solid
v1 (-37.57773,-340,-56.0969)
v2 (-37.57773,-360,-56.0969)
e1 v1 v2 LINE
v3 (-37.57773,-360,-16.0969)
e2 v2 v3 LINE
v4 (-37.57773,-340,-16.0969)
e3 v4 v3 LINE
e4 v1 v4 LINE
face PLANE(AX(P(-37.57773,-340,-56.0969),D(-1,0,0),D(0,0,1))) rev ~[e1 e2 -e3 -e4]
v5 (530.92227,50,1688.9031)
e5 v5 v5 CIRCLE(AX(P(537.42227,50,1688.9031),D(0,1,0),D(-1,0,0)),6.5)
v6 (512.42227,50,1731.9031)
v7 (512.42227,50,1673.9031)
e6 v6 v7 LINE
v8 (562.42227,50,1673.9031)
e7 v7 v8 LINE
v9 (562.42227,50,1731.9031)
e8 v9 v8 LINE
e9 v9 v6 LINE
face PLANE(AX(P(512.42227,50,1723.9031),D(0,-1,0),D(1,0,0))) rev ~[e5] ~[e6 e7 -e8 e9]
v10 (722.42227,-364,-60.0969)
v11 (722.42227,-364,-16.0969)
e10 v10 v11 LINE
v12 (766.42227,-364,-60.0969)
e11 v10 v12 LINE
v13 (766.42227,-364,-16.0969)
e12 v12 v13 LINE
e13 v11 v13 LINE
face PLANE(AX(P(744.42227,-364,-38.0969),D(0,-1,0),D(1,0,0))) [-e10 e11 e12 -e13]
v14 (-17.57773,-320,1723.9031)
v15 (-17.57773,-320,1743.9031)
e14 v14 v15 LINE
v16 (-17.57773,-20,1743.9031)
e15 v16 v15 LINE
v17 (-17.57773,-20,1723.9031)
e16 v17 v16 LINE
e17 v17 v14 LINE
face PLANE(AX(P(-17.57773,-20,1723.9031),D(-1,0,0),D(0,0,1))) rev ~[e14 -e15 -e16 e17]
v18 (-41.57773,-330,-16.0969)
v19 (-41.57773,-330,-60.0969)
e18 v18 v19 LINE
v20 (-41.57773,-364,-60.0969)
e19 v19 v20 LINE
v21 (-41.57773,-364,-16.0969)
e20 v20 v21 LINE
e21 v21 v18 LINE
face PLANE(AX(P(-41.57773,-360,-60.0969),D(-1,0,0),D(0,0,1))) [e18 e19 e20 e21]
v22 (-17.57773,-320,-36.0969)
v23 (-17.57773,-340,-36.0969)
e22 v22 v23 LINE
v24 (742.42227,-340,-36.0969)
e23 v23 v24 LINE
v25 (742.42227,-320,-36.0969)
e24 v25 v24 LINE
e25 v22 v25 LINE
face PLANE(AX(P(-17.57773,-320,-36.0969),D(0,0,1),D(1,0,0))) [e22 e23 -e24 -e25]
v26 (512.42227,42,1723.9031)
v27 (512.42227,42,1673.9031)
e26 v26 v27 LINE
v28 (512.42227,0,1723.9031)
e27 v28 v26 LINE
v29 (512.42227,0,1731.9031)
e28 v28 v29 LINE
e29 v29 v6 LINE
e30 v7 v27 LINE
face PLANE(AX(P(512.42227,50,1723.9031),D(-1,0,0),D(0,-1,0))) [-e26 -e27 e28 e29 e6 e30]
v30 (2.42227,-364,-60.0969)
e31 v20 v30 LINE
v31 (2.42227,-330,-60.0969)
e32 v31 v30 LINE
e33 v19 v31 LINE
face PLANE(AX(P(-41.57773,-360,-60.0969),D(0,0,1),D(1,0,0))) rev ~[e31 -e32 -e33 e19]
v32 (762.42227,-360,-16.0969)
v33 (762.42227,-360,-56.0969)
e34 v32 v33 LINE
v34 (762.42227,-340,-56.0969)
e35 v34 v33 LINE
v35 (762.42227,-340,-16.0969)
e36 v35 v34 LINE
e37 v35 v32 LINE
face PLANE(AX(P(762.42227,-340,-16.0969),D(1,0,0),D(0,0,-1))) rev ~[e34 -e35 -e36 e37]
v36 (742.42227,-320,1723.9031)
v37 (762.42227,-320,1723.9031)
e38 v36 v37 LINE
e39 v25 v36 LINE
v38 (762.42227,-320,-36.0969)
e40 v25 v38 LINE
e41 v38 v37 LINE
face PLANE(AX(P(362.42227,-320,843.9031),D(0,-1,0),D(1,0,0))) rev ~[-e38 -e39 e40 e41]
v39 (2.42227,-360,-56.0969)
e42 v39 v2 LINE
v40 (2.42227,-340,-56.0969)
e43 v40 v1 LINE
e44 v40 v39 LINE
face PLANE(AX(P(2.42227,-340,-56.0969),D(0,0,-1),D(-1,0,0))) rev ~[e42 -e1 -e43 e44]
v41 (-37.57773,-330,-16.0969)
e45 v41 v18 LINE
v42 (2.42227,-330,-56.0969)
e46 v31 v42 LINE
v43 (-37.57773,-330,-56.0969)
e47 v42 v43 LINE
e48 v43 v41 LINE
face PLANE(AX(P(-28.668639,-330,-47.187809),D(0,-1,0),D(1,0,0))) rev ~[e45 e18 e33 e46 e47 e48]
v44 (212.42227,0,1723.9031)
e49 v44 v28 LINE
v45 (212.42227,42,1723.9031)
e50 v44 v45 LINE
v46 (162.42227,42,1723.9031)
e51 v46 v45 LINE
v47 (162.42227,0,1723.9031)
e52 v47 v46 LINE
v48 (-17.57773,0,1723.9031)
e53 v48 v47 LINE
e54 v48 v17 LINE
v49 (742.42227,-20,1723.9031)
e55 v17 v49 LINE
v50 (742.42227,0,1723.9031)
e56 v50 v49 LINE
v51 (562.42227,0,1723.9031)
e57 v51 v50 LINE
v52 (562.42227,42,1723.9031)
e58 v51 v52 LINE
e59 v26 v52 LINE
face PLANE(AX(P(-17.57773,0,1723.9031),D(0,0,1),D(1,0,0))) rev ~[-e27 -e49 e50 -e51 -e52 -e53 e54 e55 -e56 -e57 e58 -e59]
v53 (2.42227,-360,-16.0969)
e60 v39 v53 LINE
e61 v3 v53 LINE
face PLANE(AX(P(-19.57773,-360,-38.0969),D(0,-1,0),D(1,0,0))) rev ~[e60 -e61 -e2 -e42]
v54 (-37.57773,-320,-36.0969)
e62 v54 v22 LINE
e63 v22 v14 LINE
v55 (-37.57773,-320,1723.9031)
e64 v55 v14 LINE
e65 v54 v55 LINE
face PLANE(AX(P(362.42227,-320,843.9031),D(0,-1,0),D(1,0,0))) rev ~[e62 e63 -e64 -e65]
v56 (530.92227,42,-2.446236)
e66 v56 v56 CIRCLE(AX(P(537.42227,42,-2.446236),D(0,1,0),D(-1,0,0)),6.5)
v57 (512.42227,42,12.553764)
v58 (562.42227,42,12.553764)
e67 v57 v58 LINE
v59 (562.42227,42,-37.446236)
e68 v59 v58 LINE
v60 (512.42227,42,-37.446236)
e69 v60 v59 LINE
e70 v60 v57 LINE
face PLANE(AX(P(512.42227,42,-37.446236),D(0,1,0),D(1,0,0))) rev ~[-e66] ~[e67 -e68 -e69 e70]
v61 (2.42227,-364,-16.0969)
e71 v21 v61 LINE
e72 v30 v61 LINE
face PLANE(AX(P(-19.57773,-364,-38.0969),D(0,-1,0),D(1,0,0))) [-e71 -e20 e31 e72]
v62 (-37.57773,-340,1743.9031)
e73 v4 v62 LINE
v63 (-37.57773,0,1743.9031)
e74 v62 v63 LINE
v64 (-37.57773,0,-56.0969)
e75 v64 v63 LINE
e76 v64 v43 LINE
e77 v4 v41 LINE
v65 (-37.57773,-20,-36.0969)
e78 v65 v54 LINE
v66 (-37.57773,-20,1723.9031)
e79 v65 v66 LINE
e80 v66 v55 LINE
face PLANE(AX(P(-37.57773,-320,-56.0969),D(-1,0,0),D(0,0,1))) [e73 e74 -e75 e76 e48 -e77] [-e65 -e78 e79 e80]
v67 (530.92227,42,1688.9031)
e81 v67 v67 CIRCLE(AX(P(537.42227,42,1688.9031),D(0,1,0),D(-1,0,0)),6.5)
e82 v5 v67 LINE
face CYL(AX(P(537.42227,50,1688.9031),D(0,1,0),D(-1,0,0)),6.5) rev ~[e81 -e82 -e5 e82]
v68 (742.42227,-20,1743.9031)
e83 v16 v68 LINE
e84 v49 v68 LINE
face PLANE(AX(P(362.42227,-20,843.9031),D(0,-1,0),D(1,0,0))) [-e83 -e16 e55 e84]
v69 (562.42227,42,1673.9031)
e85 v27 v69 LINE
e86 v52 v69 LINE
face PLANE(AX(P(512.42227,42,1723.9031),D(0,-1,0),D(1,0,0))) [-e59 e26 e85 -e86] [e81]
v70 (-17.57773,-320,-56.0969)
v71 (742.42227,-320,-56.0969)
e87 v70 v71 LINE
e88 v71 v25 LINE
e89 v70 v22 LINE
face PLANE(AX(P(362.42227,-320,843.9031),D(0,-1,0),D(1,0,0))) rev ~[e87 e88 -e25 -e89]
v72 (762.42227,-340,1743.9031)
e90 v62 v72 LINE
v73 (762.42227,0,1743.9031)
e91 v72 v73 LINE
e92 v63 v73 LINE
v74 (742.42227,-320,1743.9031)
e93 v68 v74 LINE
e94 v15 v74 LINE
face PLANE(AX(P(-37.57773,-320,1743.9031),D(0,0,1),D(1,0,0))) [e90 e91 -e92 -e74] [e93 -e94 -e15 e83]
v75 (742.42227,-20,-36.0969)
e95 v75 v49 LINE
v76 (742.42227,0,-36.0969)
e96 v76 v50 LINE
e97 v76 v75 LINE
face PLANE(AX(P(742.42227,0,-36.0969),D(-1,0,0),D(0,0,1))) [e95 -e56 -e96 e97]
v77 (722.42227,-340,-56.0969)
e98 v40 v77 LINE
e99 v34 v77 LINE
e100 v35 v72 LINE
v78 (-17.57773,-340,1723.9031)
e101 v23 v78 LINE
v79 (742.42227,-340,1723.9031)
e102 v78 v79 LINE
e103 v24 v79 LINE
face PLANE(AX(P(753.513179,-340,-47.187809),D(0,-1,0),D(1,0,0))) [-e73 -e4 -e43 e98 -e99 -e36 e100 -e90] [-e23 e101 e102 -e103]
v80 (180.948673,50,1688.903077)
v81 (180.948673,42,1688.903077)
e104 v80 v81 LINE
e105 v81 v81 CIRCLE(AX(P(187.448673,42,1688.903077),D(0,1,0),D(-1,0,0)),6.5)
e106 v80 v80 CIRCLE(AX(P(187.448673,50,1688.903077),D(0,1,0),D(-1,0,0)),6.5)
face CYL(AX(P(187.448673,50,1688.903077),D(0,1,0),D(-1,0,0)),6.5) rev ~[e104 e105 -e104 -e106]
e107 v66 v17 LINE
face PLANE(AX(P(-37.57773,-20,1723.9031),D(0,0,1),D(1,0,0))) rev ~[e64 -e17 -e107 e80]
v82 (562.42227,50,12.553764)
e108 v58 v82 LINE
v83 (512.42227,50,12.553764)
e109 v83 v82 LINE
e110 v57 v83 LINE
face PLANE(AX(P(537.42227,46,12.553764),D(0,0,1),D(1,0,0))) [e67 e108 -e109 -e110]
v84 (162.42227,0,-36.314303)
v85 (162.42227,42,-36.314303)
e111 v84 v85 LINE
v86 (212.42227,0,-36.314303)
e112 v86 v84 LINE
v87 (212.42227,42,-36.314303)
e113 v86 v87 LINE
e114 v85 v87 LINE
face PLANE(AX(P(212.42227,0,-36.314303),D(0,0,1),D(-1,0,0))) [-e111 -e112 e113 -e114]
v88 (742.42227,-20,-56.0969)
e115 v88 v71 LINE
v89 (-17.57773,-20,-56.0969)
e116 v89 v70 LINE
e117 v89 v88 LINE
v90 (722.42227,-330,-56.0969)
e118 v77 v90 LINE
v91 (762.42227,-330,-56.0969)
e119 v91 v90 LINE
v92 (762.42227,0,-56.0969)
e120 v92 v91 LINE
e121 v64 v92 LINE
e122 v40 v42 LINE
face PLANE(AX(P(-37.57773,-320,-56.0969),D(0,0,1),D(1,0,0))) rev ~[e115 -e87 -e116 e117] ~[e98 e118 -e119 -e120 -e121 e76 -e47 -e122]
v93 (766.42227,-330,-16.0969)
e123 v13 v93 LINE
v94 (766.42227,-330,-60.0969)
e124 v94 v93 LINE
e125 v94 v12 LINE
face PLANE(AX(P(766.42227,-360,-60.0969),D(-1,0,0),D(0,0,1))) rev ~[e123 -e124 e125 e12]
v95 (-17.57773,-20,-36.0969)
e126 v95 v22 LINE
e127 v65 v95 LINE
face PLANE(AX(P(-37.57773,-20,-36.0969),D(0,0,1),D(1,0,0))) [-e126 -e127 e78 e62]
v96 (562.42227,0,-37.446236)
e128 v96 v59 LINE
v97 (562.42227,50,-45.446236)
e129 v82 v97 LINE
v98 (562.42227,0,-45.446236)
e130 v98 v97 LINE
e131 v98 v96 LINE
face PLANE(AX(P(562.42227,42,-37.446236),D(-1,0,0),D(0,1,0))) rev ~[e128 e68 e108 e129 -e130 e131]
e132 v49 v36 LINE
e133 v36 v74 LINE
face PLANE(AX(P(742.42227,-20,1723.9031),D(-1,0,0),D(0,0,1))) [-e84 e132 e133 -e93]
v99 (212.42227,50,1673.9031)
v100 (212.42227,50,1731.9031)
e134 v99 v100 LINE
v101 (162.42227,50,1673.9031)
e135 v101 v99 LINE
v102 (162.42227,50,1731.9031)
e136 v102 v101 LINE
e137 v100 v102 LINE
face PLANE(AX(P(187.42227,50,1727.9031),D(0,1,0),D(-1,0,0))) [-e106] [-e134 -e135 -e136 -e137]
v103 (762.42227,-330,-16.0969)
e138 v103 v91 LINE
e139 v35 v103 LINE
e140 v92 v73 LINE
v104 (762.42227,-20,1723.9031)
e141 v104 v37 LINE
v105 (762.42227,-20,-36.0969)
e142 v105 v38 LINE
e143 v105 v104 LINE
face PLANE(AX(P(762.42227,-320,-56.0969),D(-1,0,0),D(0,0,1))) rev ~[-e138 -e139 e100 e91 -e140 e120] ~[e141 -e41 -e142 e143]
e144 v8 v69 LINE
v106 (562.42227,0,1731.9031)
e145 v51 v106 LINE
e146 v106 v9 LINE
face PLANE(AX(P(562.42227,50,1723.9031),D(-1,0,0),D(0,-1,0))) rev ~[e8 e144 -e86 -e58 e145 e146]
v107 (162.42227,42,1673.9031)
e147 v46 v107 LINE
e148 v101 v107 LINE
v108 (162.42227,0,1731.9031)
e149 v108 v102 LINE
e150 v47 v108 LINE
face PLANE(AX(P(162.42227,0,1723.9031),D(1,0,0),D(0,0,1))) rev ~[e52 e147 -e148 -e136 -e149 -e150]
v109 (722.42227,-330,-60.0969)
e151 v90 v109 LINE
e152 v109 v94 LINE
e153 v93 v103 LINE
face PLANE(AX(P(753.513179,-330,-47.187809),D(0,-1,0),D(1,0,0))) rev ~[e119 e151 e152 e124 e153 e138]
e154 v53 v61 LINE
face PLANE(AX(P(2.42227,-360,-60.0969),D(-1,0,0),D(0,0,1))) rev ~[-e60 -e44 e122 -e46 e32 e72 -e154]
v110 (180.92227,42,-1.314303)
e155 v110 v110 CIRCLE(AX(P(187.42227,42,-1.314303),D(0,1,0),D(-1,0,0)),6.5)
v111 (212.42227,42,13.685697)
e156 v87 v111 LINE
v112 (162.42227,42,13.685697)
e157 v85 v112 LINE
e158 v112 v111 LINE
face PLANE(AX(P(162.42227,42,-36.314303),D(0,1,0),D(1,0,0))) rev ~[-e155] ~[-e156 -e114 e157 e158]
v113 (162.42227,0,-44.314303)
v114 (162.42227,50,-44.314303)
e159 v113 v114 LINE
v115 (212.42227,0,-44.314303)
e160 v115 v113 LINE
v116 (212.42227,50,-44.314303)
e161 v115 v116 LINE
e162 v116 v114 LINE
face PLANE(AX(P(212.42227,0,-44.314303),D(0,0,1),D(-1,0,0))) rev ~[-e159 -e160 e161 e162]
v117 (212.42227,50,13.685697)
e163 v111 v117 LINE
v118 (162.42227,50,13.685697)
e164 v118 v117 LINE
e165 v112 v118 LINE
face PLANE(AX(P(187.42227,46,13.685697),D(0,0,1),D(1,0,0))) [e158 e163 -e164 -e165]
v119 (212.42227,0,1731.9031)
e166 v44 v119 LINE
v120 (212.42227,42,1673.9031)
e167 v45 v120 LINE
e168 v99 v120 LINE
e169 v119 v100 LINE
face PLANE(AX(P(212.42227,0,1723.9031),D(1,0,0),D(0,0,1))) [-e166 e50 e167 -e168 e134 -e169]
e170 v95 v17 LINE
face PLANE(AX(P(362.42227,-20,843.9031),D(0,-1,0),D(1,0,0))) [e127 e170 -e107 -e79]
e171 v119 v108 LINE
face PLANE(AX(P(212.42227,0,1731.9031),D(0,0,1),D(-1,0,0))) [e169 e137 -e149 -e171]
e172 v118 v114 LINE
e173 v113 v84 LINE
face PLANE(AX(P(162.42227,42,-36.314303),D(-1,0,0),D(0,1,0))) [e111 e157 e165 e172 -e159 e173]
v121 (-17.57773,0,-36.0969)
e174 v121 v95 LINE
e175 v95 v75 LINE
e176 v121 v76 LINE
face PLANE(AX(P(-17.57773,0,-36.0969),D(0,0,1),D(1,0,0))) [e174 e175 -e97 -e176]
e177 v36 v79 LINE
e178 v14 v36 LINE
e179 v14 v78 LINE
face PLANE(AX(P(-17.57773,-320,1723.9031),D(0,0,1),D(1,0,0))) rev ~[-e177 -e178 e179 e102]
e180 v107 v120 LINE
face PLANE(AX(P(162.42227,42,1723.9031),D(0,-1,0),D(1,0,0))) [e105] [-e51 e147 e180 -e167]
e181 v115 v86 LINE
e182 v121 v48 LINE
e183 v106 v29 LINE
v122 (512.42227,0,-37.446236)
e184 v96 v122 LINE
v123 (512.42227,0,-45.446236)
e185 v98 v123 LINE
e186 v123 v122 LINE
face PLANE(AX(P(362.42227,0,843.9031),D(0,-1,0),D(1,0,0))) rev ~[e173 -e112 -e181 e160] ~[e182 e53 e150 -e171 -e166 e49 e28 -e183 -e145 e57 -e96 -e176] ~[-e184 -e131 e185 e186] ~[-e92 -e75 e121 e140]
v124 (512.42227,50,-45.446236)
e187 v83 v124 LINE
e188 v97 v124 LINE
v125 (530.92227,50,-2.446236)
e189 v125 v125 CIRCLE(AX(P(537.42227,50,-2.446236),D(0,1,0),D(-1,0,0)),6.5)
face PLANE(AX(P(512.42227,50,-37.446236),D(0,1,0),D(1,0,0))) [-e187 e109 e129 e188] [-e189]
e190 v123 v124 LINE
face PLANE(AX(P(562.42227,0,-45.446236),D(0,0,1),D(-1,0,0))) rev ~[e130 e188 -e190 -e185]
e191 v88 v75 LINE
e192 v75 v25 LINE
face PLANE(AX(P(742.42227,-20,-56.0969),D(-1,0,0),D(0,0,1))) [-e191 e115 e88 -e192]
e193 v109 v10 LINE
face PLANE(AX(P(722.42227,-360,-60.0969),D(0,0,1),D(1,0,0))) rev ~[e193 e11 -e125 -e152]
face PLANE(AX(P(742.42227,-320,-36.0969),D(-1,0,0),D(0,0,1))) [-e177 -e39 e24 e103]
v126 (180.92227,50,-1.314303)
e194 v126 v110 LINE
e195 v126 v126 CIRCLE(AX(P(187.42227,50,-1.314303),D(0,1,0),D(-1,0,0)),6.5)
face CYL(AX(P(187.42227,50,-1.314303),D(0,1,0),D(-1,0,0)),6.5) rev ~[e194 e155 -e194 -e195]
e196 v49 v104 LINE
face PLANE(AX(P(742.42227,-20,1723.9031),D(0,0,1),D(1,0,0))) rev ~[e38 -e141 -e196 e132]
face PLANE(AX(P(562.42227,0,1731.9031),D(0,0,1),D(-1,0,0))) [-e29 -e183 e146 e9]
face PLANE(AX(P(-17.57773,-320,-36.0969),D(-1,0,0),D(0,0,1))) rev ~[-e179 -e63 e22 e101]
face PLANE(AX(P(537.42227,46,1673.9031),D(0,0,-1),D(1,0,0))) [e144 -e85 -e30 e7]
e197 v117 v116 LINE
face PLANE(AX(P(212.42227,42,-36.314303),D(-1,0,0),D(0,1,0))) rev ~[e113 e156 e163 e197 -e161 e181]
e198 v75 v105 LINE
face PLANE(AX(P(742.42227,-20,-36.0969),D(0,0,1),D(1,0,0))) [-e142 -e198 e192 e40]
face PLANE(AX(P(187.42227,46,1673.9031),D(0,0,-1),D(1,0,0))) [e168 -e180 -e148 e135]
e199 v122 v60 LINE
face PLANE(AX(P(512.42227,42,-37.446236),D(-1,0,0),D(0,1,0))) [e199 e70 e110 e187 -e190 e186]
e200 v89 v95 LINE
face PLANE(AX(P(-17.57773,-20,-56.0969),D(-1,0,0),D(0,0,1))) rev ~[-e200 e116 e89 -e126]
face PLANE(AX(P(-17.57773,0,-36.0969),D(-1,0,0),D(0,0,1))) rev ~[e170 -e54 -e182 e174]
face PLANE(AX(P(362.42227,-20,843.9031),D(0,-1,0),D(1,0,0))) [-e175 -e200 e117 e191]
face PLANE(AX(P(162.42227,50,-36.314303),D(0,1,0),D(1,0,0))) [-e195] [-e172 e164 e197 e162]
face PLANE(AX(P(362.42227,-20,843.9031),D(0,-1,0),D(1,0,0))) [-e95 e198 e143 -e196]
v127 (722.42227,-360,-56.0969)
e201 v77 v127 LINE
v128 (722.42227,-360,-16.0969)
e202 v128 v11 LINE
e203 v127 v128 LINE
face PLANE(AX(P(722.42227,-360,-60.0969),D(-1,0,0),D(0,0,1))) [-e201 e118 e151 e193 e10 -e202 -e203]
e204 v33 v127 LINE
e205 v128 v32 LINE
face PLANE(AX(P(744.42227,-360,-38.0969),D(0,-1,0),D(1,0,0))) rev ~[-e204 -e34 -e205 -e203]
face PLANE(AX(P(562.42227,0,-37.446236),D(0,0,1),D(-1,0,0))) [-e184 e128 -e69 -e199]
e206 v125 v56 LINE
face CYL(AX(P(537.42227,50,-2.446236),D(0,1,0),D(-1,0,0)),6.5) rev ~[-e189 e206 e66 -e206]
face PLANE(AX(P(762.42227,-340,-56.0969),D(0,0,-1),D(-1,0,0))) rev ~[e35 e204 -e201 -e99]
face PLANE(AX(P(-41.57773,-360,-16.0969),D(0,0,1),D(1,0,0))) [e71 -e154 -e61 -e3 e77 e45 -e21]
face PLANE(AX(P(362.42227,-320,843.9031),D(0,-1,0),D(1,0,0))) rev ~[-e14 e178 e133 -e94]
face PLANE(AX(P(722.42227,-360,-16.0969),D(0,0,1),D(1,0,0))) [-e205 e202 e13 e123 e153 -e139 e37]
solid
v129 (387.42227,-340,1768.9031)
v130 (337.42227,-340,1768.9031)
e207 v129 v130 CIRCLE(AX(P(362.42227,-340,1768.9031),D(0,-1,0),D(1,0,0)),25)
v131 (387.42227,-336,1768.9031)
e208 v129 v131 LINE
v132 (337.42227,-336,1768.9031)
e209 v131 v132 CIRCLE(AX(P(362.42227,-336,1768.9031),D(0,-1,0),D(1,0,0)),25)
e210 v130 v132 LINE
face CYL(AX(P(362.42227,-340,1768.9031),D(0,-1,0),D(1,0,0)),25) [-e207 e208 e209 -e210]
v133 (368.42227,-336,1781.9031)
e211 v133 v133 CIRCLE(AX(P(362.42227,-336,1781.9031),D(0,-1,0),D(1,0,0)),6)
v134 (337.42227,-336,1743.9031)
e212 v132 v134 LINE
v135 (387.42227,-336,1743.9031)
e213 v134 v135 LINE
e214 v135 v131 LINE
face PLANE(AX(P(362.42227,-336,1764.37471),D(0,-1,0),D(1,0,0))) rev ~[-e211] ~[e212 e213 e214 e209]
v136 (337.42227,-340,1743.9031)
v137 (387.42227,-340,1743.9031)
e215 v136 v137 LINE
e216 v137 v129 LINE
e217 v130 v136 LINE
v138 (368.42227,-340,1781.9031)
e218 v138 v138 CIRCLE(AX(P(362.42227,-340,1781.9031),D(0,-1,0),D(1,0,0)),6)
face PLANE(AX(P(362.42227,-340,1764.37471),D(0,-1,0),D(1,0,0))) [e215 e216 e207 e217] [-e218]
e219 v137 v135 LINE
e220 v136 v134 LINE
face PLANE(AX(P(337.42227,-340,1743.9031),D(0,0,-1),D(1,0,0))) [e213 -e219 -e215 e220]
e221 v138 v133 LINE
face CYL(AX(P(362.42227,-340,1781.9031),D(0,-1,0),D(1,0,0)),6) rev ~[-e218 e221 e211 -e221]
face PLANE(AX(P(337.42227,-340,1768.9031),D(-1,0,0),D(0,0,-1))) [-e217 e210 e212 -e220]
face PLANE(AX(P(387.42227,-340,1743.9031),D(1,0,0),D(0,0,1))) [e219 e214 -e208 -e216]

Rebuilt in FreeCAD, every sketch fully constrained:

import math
import FreeCAD as App
import Part
import Sketcher


def add_polygon(sketch, points):
    """Adds a closed chain of lines whose ends are joined by coincident constraints."""
    first, n = sketch.GeometryCount, len(points)
    for a, b in zip(points, points[1:] + points[:1]):
        sketch.addGeometry(Part.LineSegment(App.Vector(*a, 0), App.Vector(*b, 0)), False)
    for i in range(n):
        sketch.addConstraint(Sketcher.Constraint("Coincident", first + i, 2, first + (i + 1) % n, 1))

doc = App.newDocument("Part")
body = doc.addObject("PartDesign::Body", "Body")

# Sketch on XZ plane
sketch1 = body.newObject("Sketcher::SketchObject", "Sketch")
sketch1.AttachmentSupport = (doc.getObject("XZ_Plane"), [""])
sketch1.MapMode = "FlatFace"
add_polygon(sketch1, [(-38, 1744), (-38, -56), (762, -56), (762, 1744)])  # lines 0-3
add_polygon(sketch1, [(742, -36), (-18, -36), (-18, 1724), (742, 1724)])  # lines 4-7
sketch1.addConstraint([
    Sketcher.Constraint("Vertical", 0),
    Sketcher.Constraint("Horizontal", 1),
    Sketcher.Constraint("Vertical", 2),
    Sketcher.Constraint("Horizontal", 3),
    Sketcher.Constraint("Horizontal", 4),
    Sketcher.Constraint("Vertical", 5),
    Sketcher.Constraint("Horizontal", 6),
    Sketcher.Constraint("Vertical", 7),
    Sketcher.Constraint("DistanceX", 1, 1, 1, 2, 800.0),
    Sketcher.Constraint("DistanceX", 4, 2, 4, 1, 760.0),
    Sketcher.Constraint("DistanceY", 0, 2, 0, 1, 1800.0),
    Sketcher.Constraint("DistanceY", 5, 1, 5, 2, 1760.0),
    Sketcher.Constraint("DistanceX", 0, 2, 4, 2, 20.0),
    Sketcher.Constraint("DistanceY", 0, 2, 4, 2, 20.0),
    Sketcher.Constraint("DistanceY", 0, 2, -1, 1, 56.0969),
    Sketcher.Constraint("DistanceX", 0, 2, -1, 1, 37.57773),
])
pad1 = body.newObject("PartDesign::Pad", "Pad")
pad1.Profile = sketch1
pad1.Length = 20

# Sketch on XZ plane
sketch2 = body.newObject("Sketcher::SketchObject", "Sketch001")
sketch2.AttachmentSupport = (doc.getObject("XZ_Plane"), [""])
sketch2.MapMode = "FlatFace"
sketch2.AttachmentOffset = App.Placement(App.Vector(0, 0, 20), App.Rotation())
add_polygon(sketch2, [(742, 1744), (742, 1724), (762, 1724), (762, 1744)])  # lines 0-3
add_polygon(sketch2, [(742, -36), (742, -56), (762, -56), (762, -36)])  # lines 4-7
add_polygon(sketch2, [(-38, -36), (-38, -56), (-18, -56), (-18, -36)])  # lines 8-11
add_polygon(sketch2, [(-38, 1744), (-38, 1724), (-18, 1724), (-18, 1744)])  # lines 12-15
sketch2.addConstraint([
    Sketcher.Constraint("Vertical", 0),
    Sketcher.Constraint("Horizontal", 1),
    Sketcher.Constraint("Vertical", 2),
    Sketcher.Constraint("Horizontal", 3),
    Sketcher.Constraint("Vertical", 4),
    Sketcher.Constraint("Horizontal", 5),
    Sketcher.Constraint("Vertical", 6),
    Sketcher.Constraint("Horizontal", 7),
    Sketcher.Constraint("Vertical", 8),
    Sketcher.Constraint("Horizontal", 9),
    Sketcher.Constraint("Vertical", 10),
    Sketcher.Constraint("Horizontal", 11),
    Sketcher.Constraint("Vertical", 12),
    Sketcher.Constraint("Horizontal", 13),
    Sketcher.Constraint("Vertical", 14),
    Sketcher.Constraint("Horizontal", 15),
    Sketcher.Constraint("Horizontal", 5, 2, 8, 2),
    Sketcher.Constraint("Horizontal", 7, 2, 10, 2),
    Sketcher.Constraint("Horizontal", 1, 2, 12, 2),
    Sketcher.Constraint("Horizontal", 3, 2, 14, 2),
    Sketcher.Constraint("Vertical", 3, 2, 4, 2),
    Sketcher.Constraint("Vertical", 2, 2, 5, 2),
    Sketcher.Constraint("Vertical", 11, 2, 12, 2),
    Sketcher.Constraint("Vertical", 10, 2, 13, 2),
    Sketcher.Constraint("Equal", 7, 9),
    Sketcher.Constraint("Equal", 15, 0),
    Sketcher.Constraint("Equal", 2, 4),
    Sketcher.Constraint("DistanceX", 1, 1, 1, 2, 20.0),
    Sketcher.Constraint("DistanceY", 4, 2, 0, 2, 1780.0),
    Sketcher.Constraint("DistanceX", 8, 2, 4, 2, 780.0),
    Sketcher.Constraint("DistanceY", -1, 1, 0, 2, 1723.9031),
    Sketcher.Constraint("DistanceX", -1, 1, 0, 2, 742.42227),
])
pad2 = body.newObject("PartDesign::Pad", "Pad001")
pad2.Profile = sketch2
pad2.Length = 300

# Sketch on XZ plane
sketch3 = body.newObject("Sketcher::SketchObject", "Sketch002")
sketch3.AttachmentSupport = (doc.getObject("XZ_Plane"), [""])
sketch3.MapMode = "FlatFace"
sketch3.AttachmentOffset = App.Placement(App.Vector(0, 0, 320), App.Rotation())
add_polygon(sketch3, [(-38, 1744), (-38, -56), (762, -56), (762, 1744)])  # lines 0-3
add_polygon(sketch3, [(742, -36), (-18, -36), (-18, 1724), (742, 1724)])  # lines 4-7
sketch3.addConstraint([
    Sketcher.Constraint("Vertical", 0),
    Sketcher.Constraint("Horizontal", 1),
    Sketcher.Constraint("Vertical", 2),
    Sketcher.Constraint("Horizontal", 3),
    Sketcher.Constraint("Horizontal", 4),
    Sketcher.Constraint("Vertical", 5),
    Sketcher.Constraint("Horizontal", 6),
    Sketcher.Constraint("Vertical", 7),
    Sketcher.Constraint("DistanceX", 1, 1, 1, 2, 800.0),
    Sketcher.Constraint("DistanceX", 4, 2, 4, 1, 760.0),
    Sketcher.Constraint("DistanceY", 0, 2, 0, 1, 1800.0),
    Sketcher.Constraint("DistanceY", 5, 1, 5, 2, 1760.0),
    Sketcher.Constraint("DistanceX", 0, 2, 4, 2, 20.0),
    Sketcher.Constraint("DistanceY", 0, 2, 4, 2, 20.0),
    Sketcher.Constraint("DistanceY", 0, 2, -1, 1, 56.0969),
    Sketcher.Constraint("DistanceX", 0, 2, -1, 1, 37.57773),
])
pad3 = body.newObject("PartDesign::Pad", "Pad002")
pad3.Profile = sketch3
pad3.Length = 20

# Sketch on XZ plane
sketch4 = body.newObject("Sketcher::SketchObject", "Sketch003")
sketch4.AttachmentSupport = (doc.getObject("XZ_Plane"), [""])
sketch4.MapMode = "FlatFace"
add_polygon(sketch4, [(562, 1732), (562, 1724), (512, 1724), (512, 1732)])  # lines 0-3
add_polygon(sketch4, [(212, 1732), (212, 1724), (162, 1724), (162, 1732)])  # lines 4-7
add_polygon(sketch4, [(562, -37), (562, -45), (512, -45), (512, -37)])  # lines 8-11
add_polygon(sketch4, [(212, -36), (212, -44), (162, -44), (162, -36)])  # lines 12-15
sketch4.addConstraint([
    Sketcher.Constraint("Vertical", 0),
    Sketcher.Constraint("Horizontal", 1),
    Sketcher.Constraint("Vertical", 2),
    Sketcher.Constraint("Horizontal", 3),
    Sketcher.Constraint("Vertical", 4),
    Sketcher.Constraint("Horizontal", 5),
    Sketcher.Constraint("Vertical", 6),
    Sketcher.Constraint("Horizontal", 7),
    Sketcher.Constraint("Vertical", 8),
    Sketcher.Constraint("Horizontal", 9),
    Sketcher.Constraint("Vertical", 10),
    Sketcher.Constraint("Horizontal", 11),
    Sketcher.Constraint("Vertical", 12),
    Sketcher.Constraint("Horizontal", 13),
    Sketcher.Constraint("Vertical", 14),
    Sketcher.Constraint("Horizontal", 15),
    Sketcher.Constraint("Horizontal", 1, 2, 4, 2),
    Sketcher.Constraint("Horizontal", 3, 2, 6, 2),
    Sketcher.Constraint("Vertical", 3, 2, 8, 2),
    Sketcher.Constraint("Vertical", 2, 2, 9, 2),
    Sketcher.Constraint("Vertical", 7, 2, 12, 2),
    Sketcher.Constraint("Vertical", 6, 2, 13, 2),
    Sketcher.Constraint("Equal", 3, 5),
    Sketcher.Constraint("Equal", 6, 8),
    Sketcher.Constraint("Equal", 10, 12),
    Sketcher.Constraint("DistanceX", 1, 2, 1, 1, 50.0),
    Sketcher.Constraint("DistanceY", 0, 2, 0, 1, 8.0),
    Sketcher.Constraint("DistanceX", 4, 2, 1, 2, 300.0),
    Sketcher.Constraint("DistanceY", -1, 1, 0, 2, 1723.9031),
    Sketcher.Constraint("DistanceX", -1, 1, 0, 2, 562.42227),
    Sketcher.Constraint("DistanceY", 8, 2, -1, 1, 45.446236),
    Sketcher.Constraint("DistanceY", 12, 2, -1, 1, 44.314303),
])
pad4 = body.newObject("PartDesign::Pad", "Pad003")
pad4.Profile = sketch4
pad4.Length = 50
pad4.Reversed = True

# Sketch on XY plane
sketch5 = body.newObject("Sketcher::SketchObject", "Sketch004")
sketch5.AttachmentSupport = (doc.getObject("XY_Plane"), [""])
sketch5.MapMode = "FlatFace"
sketch5.AttachmentOffset = App.Placement(App.Vector(0, 0, 1723.9031), App.Rotation())
add_polygon(sketch5, [(512, 42), (512, 50), (562, 50), (562, 42)])  # lines 0-3
add_polygon(sketch5, [(162, 42), (162, 50), (212, 50), (212, 42)])  # lines 4-7
sketch5.addConstraint([
    Sketcher.Constraint("Vertical", 0),
    Sketcher.Constraint("Horizontal", 1),
    Sketcher.Constraint("Vertical", 2),
    Sketcher.Constraint("Horizontal", 3),
    Sketcher.Constraint("Vertical", 4),
    Sketcher.Constraint("Horizontal", 5),
    Sketcher.Constraint("Vertical", 6),
    Sketcher.Constraint("Horizontal", 7),
    Sketcher.Constraint("Horizontal", 1, 2, 4, 2),
    Sketcher.Constraint("Horizontal", 3, 2, 6, 2),
    Sketcher.Constraint("Equal", 3, 5),
    Sketcher.Constraint("DistanceX", 1, 1, 1, 2, 50.0),
    Sketcher.Constraint("DistanceY", 0, 1, 0, 2, 8.0),
    Sketcher.Constraint("DistanceY", -1, 1, 0, 2, 50.0),
    Sketcher.Constraint("DistanceX", 4, 2, 0, 2, 350.0),
    Sketcher.Constraint("DistanceX", -1, 1, 0, 2, 512.42227),
])
pad5 = body.newObject("PartDesign::Pad", "Pad004")
pad5.Profile = sketch5
pad5.Length = 50
pad5.Reversed = True

# Sketch on XY plane
sketch6 = body.newObject("Sketcher::SketchObject", "Sketch005")
sketch6.AttachmentSupport = (doc.getObject("XY_Plane"), [""])
sketch6.MapMode = "FlatFace"
sketch6.AttachmentOffset = App.Placement(App.Vector(0, 0, -36.314303), App.Rotation())
add_polygon(sketch6, [(162, 50), (162, 42), (212, 42), (212, 50)])  # lines 0-3
sketch6.addConstraint([
    Sketcher.Constraint("Vertical", 0),
    Sketcher.Constraint("Horizontal", 1),
    Sketcher.Constraint("Vertical", 2),
    Sketcher.Constraint("Horizontal", 3),
    Sketcher.Constraint("DistanceX", 1, 1, 1, 2, 50.0),
    Sketcher.Constraint("DistanceY", 0, 2, 0, 1, 8.0),
    Sketcher.Constraint("DistanceY", -1, 1, 0, 2, 42.0),
    Sketcher.Constraint("DistanceX", -1, 1, 0, 2, 162.42227),
])
pad6 = body.newObject("PartDesign::Pad", "Pad005")
pad6.Profile = sketch6
pad6.Length = 50

# Sketch on XY plane
sketch7 = body.newObject("Sketcher::SketchObject", "Sketch006")
sketch7.AttachmentSupport = (doc.getObject("XY_Plane"), [""])
sketch7.MapMode = "FlatFace"
sketch7.AttachmentOffset = App.Placement(App.Vector(0, 0, -37.446236), App.Rotation())
add_polygon(sketch7, [(512, 50), (512, 42), (562, 42), (562, 50)])  # lines 0-3
sketch7.addConstraint([
    Sketcher.Constraint("Vertical", 0),
    Sketcher.Constraint("Horizontal", 1),
    Sketcher.Constraint("Vertical", 2),
    Sketcher.Constraint("Horizontal", 3),
    Sketcher.Constraint("DistanceX", 1, 1, 1, 2, 50.0),
    Sketcher.Constraint("DistanceY", 0, 2, 0, 1, 8.0),
    Sketcher.Constraint("DistanceY", -1, 1, 0, 2, 42.0),
    Sketcher.Constraint("DistanceX", -1, 1, 0, 2, 512.42227),
])
pad7 = body.newObject("PartDesign::Pad", "Pad006")
pad7.Profile = sketch7
pad7.Length = 50

# Sketch on XZ plane
sketch8 = body.newObject("Sketcher::SketchObject", "Sketch007")
sketch8.AttachmentSupport = (doc.getObject("XZ_Plane"), [""])
sketch8.MapMode = "FlatFace"
sketch8.AttachmentOffset = App.Placement(App.Vector(0, 0, -50), App.Rotation())
sketch8.addGeometry(Part.Circle(App.Vector(187, -1, 0), App.Vector(0, 0, 1), 6), False)
sketch8.addConstraint([
    Sketcher.Constraint("Diameter", 0, 13.0),
    Sketcher.Constraint("DistanceX", -1, 1, 0, 3, 187.42227),
    Sketcher.Constraint("DistanceY", 0, 3, -1, 1, 1.314303),
])
pocket1 = body.newObject("PartDesign::Pocket", "Pocket")
pocket1.Profile = sketch8
pocket1.Length = 25
pocket1.Reversed = True

# Sketch on XZ plane
sketch9 = body.newObject("Sketcher::SketchObject", "Sketch008")
sketch9.AttachmentSupport = (doc.getObject("XZ_Plane"), [""])
sketch9.MapMode = "FlatFace"
sketch9.AttachmentOffset = App.Placement(App.Vector(0, 0, -50), App.Rotation())
sketch9.addGeometry(Part.Circle(App.Vector(537, -2, 0), App.Vector(0, 0, 1), 6), False)
sketch9.addConstraint([
    Sketcher.Constraint("Diameter", 0, 13.0),
    Sketcher.Constraint("DistanceX", -1, 1, 0, 3, 537.42227),
    Sketcher.Constraint("DistanceY", 0, 3, -1, 1, 2.446236),
])
pocket2 = body.newObject("PartDesign::Pocket", "Pocket001")
pocket2.Profile = sketch9
pocket2.Length = 25
pocket2.Reversed = True

# Sketch on XZ plane
sketch10 = body.newObject("Sketcher::SketchObject", "Sketch009")
sketch10.AttachmentSupport = (doc.getObject("XZ_Plane"), [""])
sketch10.MapMode = "FlatFace"
sketch10.AttachmentOffset = App.Placement(App.Vector(0, 0, -50), App.Rotation())
sketch10.addGeometry(Part.Circle(App.Vector(187, 1689, 0), App.Vector(0, 0, 1), 6), False)
sketch10.addConstraint([
    Sketcher.Constraint("Diameter", 0, 13.0),
    Sketcher.Constraint("DistanceX", -1, 1, 0, 3, 187.448673),
    Sketcher.Constraint("DistanceY", -1, 1, 0, 3, 1688.903077),
])
pocket3 = body.newObject("PartDesign::Pocket", "Pocket002")
pocket3.Profile = sketch10
pocket3.Length = 25
pocket3.Reversed = True

# Sketch on XZ plane
sketch11 = body.newObject("Sketcher::SketchObject", "Sketch010")
sketch11.AttachmentSupport = (doc.getObject("XZ_Plane"), [""])
sketch11.MapMode = "FlatFace"
sketch11.AttachmentOffset = App.Placement(App.Vector(0, 0, -50), App.Rotation())
sketch11.addGeometry(Part.Circle(App.Vector(537, 1689, 0), App.Vector(0, 0, 1), 6), False)
sketch11.addConstraint([
    Sketcher.Constraint("Diameter", 0, 13.0),
    Sketcher.Constraint("DistanceY", -1, 1, 0, 3, 1688.9031),
    Sketcher.Constraint("DistanceX", -1, 1, 0, 3, 537.42227),
])
pocket4 = body.newObject("PartDesign::Pocket", "Pocket003")
pocket4.Profile = sketch11
pocket4.Length = 25
pocket4.Reversed = True

# Sketch on XZ plane
sketch12 = body.newObject("Sketcher::SketchObject", "Sketch011")
sketch12.AttachmentSupport = (doc.getObject("XZ_Plane"), [""])
sketch12.MapMode = "FlatFace"
sketch12.AttachmentOffset = App.Placement(App.Vector(0, 0, 340), App.Rotation())
add_polygon(sketch12, [(2.4, -56.1), (-37.6, -56.1), (-37.6, -16.1), (-41.6, -16.1), (-41.6, -60.1), (2.4, -60.1)])  # lines 0-5
sketch12.addConstraint([
    Sketcher.Constraint("Horizontal", 0),
    Sketcher.Constraint("Vertical", 1),
    Sketcher.Constraint("Horizontal", 2),
    Sketcher.Constraint("Vertical", 3),
    Sketcher.Constraint("Horizontal", 4),
    Sketcher.Constraint("Vertical", 5),
    Sketcher.Constraint("Equal", 0, 1),
    Sketcher.Constraint("Equal", 4, 3),
    Sketcher.Constraint("DistanceX", 0, 2, 0, 1, 40.0),
    Sketcher.Constraint("DistanceX", 2, 2, 2, 1, 4.0),
    Sketcher.Constraint("DistanceY", 0, 2, -1, 1, 56.0969),
    Sketcher.Constraint("DistanceX", 0, 2, -1, 1, 37.57773),
])
pad8 = body.newObject("PartDesign::Pad", "Pad007")
pad8.Profile = sketch12
pad8.Length = 10
pad8.Reversed = True

# Sketch on XZ plane
sketch13 = body.newObject("Sketcher::SketchObject", "Sketch012")
sketch13.AttachmentSupport = (doc.getObject("XZ_Plane"), [""])
sketch13.MapMode = "FlatFace"
sketch13.AttachmentOffset = App.Placement(App.Vector(0, 0, 340), App.Rotation())
add_polygon(sketch13, [(2.4, -56.1), (-37.6, -56.1), (-37.6, -16.1), (-41.6, -16.1), (-41.6, -60.1), (2.4, -60.1)])  # lines 0-5
sketch13.addConstraint([
    Sketcher.Constraint("Horizontal", 0),
    Sketcher.Constraint("Vertical", 1),
    Sketcher.Constraint("Horizontal", 2),
    Sketcher.Constraint("Vertical", 3),
    Sketcher.Constraint("Horizontal", 4),
    Sketcher.Constraint("Vertical", 5),
    Sketcher.Constraint("Equal", 0, 1),
    Sketcher.Constraint("Equal", 4, 3),
    Sketcher.Constraint("DistanceX", 0, 2, 0, 1, 40.0),
    Sketcher.Constraint("DistanceX", 2, 2, 2, 1, 4.0),
    Sketcher.Constraint("DistanceY", 0, 2, -1, 1, 56.0969),
    Sketcher.Constraint("DistanceX", 0, 2, -1, 1, 37.57773),
])
pad9 = body.newObject("PartDesign::Pad", "Pad008")
pad9.Profile = sketch13
pad9.Length = 20

# Sketch on XZ plane
sketch14 = body.newObject("Sketcher::SketchObject", "Sketch013")
sketch14.AttachmentSupport = (doc.getObject("XZ_Plane"), [""])
sketch14.MapMode = "FlatFace"
sketch14.AttachmentOffset = App.Placement(App.Vector(0, 0, 360), App.Rotation())
add_polygon(sketch14, [(-42, -16), (-42, -60), (2, -60), (2, -16)])  # lines 0-3
sketch14.addConstraint([
    Sketcher.Constraint("Vertical", 0),
    Sketcher.Constraint("Horizontal", 1),
    Sketcher.Constraint("Vertical", 2),
    Sketcher.Constraint("Horizontal", 3),
    Sketcher.Constraint("Equal", 3, 0),
    Sketcher.Constraint("DistanceX", 1, 1, 1, 2, 44.0),
    Sketcher.Constraint("DistanceY", 0, 2, -1, 1, 60.0969),
    Sketcher.Constraint("DistanceX", 0, 2, -1, 1, 41.57773),
])
pad10 = body.newObject("PartDesign::Pad", "Pad009")
pad10.Profile = sketch14
pad10.Length = 4

# Sketch on XZ plane
sketch15 = body.newObject("Sketcher::SketchObject", "Sketch014")
sketch15.AttachmentSupport = (doc.getObject("XZ_Plane"), [""])
sketch15.MapMode = "FlatFace"
sketch15.AttachmentOffset = App.Placement(App.Vector(0, 0, 340), App.Rotation())
add_polygon(sketch15, [(762.4, -16.1), (762.4, -56.1), (722.4, -56.1), (722.4, -60.1), (766.4, -60.1), (766.4, -16.1)])  # lines 0-5
sketch15.addConstraint([
    Sketcher.Constraint("Vertical", 0),
    Sketcher.Constraint("Horizontal", 1),
    Sketcher.Constraint("Vertical", 2),
    Sketcher.Constraint("Horizontal", 3),
    Sketcher.Constraint("Vertical", 4),
    Sketcher.Constraint("Horizontal", 5),
    Sketcher.Constraint("Equal", 1, 0),
    Sketcher.Constraint("Equal", 5, 2),
    Sketcher.Constraint("DistanceX", 1, 2, 1, 1, 40.0),
    Sketcher.Constraint("DistanceX", 3, 1, 3, 2, 44.0),
    Sketcher.Constraint("DistanceY", 0, 2, -1, 1, 56.0969),
    Sketcher.Constraint("DistanceX", -1, 1, 0, 2, 762.42227),
])
pad11 = body.newObject("PartDesign::Pad", "Pad010")
pad11.Profile = sketch15
pad11.Length = 10
pad11.Reversed = True

# Sketch on XZ plane
sketch16 = body.newObject("Sketcher::SketchObject", "Sketch015")
sketch16.AttachmentSupport = (doc.getObject("XZ_Plane"), [""])
sketch16.MapMode = "FlatFace"
sketch16.AttachmentOffset = App.Placement(App.Vector(0, 0, 340), App.Rotation())
add_polygon(sketch16, [(762.4, -16.1), (762.4, -56.1), (722.4, -56.1), (722.4, -60.1), (766.4, -60.1), (766.4, -16.1)])  # lines 0-5
sketch16.addConstraint([
    Sketcher.Constraint("Vertical", 0),
    Sketcher.Constraint("Horizontal", 1),
    Sketcher.Constraint("Vertical", 2),
    Sketcher.Constraint("Horizontal", 3),
    Sketcher.Constraint("Vertical", 4),
    Sketcher.Constraint("Horizontal", 5),
    Sketcher.Constraint("Equal", 1, 0),
    Sketcher.Constraint("Equal", 5, 2),
    Sketcher.Constraint("DistanceX", 1, 2, 1, 1, 40.0),
    Sketcher.Constraint("DistanceX", 3, 1, 3, 2, 44.0),
    Sketcher.Constraint("DistanceY", 0, 2, -1, 1, 56.0969),
    Sketcher.Constraint("DistanceX", -1, 1, 0, 2, 762.42227),
])
pad12 = body.newObject("PartDesign::Pad", "Pad011")
pad12.Profile = sketch16
pad12.Length = 20

# Sketch on XZ plane
sketch17 = body.newObject("Sketcher::SketchObject", "Sketch016")
sketch17.AttachmentSupport = (doc.getObject("XZ_Plane"), [""])
sketch17.MapMode = "FlatFace"
sketch17.AttachmentOffset = App.Placement(App.Vector(0, 0, 360), App.Rotation())
add_polygon(sketch17, [(722, -16), (722, -60), (766, -60), (766, -16)])  # lines 0-3
sketch17.addConstraint([
    Sketcher.Constraint("Vertical", 0),
    Sketcher.Constraint("Horizontal", 1),
    Sketcher.Constraint("Vertical", 2),
    Sketcher.Constraint("Horizontal", 3),
    Sketcher.Constraint("Equal", 3, 0),
    Sketcher.Constraint("DistanceX", 1, 1, 1, 2, 44.0),
    Sketcher.Constraint("DistanceY", 0, 2, -1, 1, 60.0969),
    Sketcher.Constraint("DistanceX", -1, 1, 0, 2, 722.42227),
])
pad13 = body.newObject("PartDesign::Pad", "Pad012")
pad13.Profile = sketch17
pad13.Length = 4
body2 = doc.addObject("PartDesign::Body", "Body001")

# Sketch on XZ plane
sketch18 = body2.newObject("Sketcher::SketchObject", "Sketch017")
sketch18.AttachmentSupport = (doc.getObject("XZ_Plane001"), [""])
sketch18.MapMode = "FlatFace"
sketch18.AttachmentOffset = App.Placement(App.Vector(0, 0, 340), App.Rotation())
sketch18.addGeometry([
    Part.LineSegment(App.Vector(337, 1744, 0), App.Vector(387, 1744, 0)),  # 0
    Part.LineSegment(App.Vector(387, 1744, 0), App.Vector(387, 1769, 0)),  # 1
    Part.ArcOfCircle(Part.Circle(App.Vector(362, 1769, 0), App.Vector(0, 0, 1), 25), math.radians(0), math.radians(180)),  # 2
    Part.LineSegment(App.Vector(337, 1769, 0), App.Vector(337, 1744, 0)),  # 3
    Part.Circle(App.Vector(362, 1782, 0), App.Vector(0, 0, 1), 6),  # 4
], False)
sketch18.addConstraint([
    Sketcher.Constraint("Coincident", 0, 2, 1, 1),
    Sketcher.Constraint("Tangent", 1, 2, 2, 1),
    Sketcher.Constraint("Tangent", 2, 2, 3, 1),
    Sketcher.Constraint("Coincident", 3, 2, 0, 1),
    Sketcher.Constraint("Horizontal", 0),
    Sketcher.Constraint("Vertical", 1),
    Sketcher.Constraint("Vertical", 3),
    Sketcher.Constraint("Vertical", 2, 3, 4, 3),
    Sketcher.Constraint("Diameter", 4, 12.0),
    Sketcher.Constraint("Radius", 2, 25.0),
    Sketcher.Constraint("DistanceY", 1, 1, 1, 2, 25.0),
    Sketcher.Constraint("DistanceY", 2, 3, 4, 3, 13.0),
    Sketcher.Constraint("DistanceY", -1, 1, 2, 3, 1768.9031),
    Sketcher.Constraint("DistanceX", -1, 1, 2, 3, 362.42227),
])
pad14 = body2.newObject("PartDesign::Pad", "Pad013")
pad14.Profile = sketch18
pad14.Length = 4
pad14.Reversed = True

doc.recompute()
